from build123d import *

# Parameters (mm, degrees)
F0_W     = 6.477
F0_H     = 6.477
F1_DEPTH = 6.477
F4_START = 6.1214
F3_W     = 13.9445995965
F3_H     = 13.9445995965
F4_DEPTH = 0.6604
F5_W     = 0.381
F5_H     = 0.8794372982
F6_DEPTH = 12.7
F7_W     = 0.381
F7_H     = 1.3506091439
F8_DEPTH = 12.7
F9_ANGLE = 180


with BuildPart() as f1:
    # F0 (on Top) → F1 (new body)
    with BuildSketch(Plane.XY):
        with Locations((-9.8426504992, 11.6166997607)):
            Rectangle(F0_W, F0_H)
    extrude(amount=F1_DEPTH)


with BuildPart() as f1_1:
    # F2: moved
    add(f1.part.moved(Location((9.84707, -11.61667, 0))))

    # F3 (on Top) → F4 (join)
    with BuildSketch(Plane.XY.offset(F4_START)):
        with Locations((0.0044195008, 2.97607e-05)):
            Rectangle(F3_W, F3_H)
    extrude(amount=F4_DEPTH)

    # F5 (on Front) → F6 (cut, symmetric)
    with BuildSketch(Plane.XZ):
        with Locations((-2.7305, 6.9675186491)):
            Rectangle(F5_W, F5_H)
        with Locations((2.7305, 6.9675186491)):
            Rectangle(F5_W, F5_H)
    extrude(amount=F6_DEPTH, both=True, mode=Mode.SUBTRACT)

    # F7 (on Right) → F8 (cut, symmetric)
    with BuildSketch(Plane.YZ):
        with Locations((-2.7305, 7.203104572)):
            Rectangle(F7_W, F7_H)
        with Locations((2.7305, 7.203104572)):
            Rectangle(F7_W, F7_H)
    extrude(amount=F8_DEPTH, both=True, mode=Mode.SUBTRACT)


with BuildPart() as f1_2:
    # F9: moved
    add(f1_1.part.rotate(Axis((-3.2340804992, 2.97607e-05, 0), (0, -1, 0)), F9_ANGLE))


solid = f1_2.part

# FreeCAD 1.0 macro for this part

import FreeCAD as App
import Part
import Sketcher

V = App.Vector
Q = App.Units.Quantity


def add_polygon(sketch, points):
    """Adds a closed chain of lines whose ends are joined by coincident constraints."""
    first, n = sketch.GeometryCount, len(points)
    for a, b in zip(points, points[1:] + points[:1]):
        sketch.addGeometry(Part.LineSegment(App.Vector(*a, 0), App.Vector(*b, 0)), False)
    for i in range(n):
        sketch.addConstraint(Sketcher.Constraint("Coincident", first + i, 2, first + (i + 1) % n, 1))

doc = App.newDocument("Part")
body = doc.addObject("PartDesign::Body", "Body")

sketch1 = body.newObject("Sketcher::SketchObject", "Sketch")
sketch1.AttachmentSupport = (doc.getObject("XY_Plane"), [""])
sketch1.MapMode = "FlatFace"
add_polygon(sketch1, [(-13, 15), (-13, 8), (-7, 8), (-7, 15)])
sketch1.addConstraint(Sketcher.Constraint("Vertical", 0))
sketch1.addConstraint(Sketcher.Constraint("Horizontal", 1))
sketch1.addConstraint(Sketcher.Constraint("Vertical", 2))
sketch1.addConstraint(Sketcher.Constraint("Horizontal", 3))
sketch1.addConstraint(Sketcher.Constraint("Equal", 3, 0))
sketch1.addConstraint(Sketcher.Constraint("DistanceX", 1, 1, 1, 2, Q("0.255 in")))
sketch1.addConstraint(Sketcher.Constraint("DistanceY", -1, 1, 0, 2, Q("8.3782 mm")))
sketch1.addConstraint(Sketcher.Constraint("DistanceX", 0, 2, -1, 1, Q("13.08115 mm")))
pad1 = body.newObject("PartDesign::Pad", "Pad")
pad1.Profile = sketch1
pad1.Length = Q("0.255 in")
body2 = doc.addObject("PartDesign::Body", "Body001")
doc.recompute()

body.Placement = App.Placement(V(9.84707, -11.61667, 0), App.Rotation(V(0, 0, 1), 0))
boolean = body2.newObject("PartDesign::Boolean", "Boolean")
boolean.Type = "Fuse"
boolean.addObjects([body])

sketch2 = body2.newObject("Sketcher::SketchObject", "Sketch001")
sketch2.AttachmentSupport = (doc.getObject("XY_Plane001"), [""])
sketch2.MapMode = "FlatFace"
sketch2.AttachmentOffset = App.Placement(V(0, 0, 0.241 * 25.4), App.Rotation())
add_polygon(sketch2, [(-7, 7), (-7, -7), (7, -7), (7, 7)])
sketch2.addConstraint(Sketcher.Constraint("Vertical", 0))
sketch2.addConstraint(Sketcher.Constraint("Horizontal", 1))
sketch2.addConstraint(Sketcher.Constraint("Vertical", 2))
sketch2.addConstraint(Sketcher.Constraint("Horizontal", 3))
sketch2.addConstraint(Sketcher.Constraint("Equal", 3, 0))
sketch2.addConstraint(Sketcher.Constraint("DistanceX", 1, 1, 1, 2, Q("0.549 in")))
sketch2.addConstraint(Sketcher.Constraint("DistanceX", 0, 2, -1, 1, Q("6.96788 mm")))
sketch2.addConstraint(Sketcher.Constraint("DistanceY", 0, 2, -1, 1, Q("6.97227 mm")))
pad2 = body2.newObject("PartDesign::Pad", "Pad001")
pad2.Profile = sketch2
pad2.Length = Q("0.026 in")

sketch3 = body2.newObject("Sketcher::SketchObject", "Sketch002")
sketch3.AttachmentSupport = (doc.getObject("XZ_Plane001"), [""])
sketch3.MapMode = "FlatFace"
add_polygon(sketch3, [(-2.92, 7.41), (-2.92, 6.53), (-2.54, 6.53), (-2.54, 7.41)])
add_polygon(sketch3, [(2.54, 7.41), (2.54, 6.53), (2.92, 6.53), (2.92, 7.41)])
sketch3.addConstraint(Sketcher.Constraint("Vertical", 0))
sketch3.addConstraint(Sketcher.Constraint("Horizontal", 1))
sketch3.addConstraint(Sketcher.Constraint("Vertical", 2))
sketch3.addConstraint(Sketcher.Constraint("Horizontal", 3))
sketch3.addConstraint(Sketcher.Constraint("Vertical", 4))
sketch3.addConstraint(Sketcher.Constraint("Horizontal", 5))
sketch3.addConstraint(Sketcher.Constraint("Vertical", 6))
sketch3.addConstraint(Sketcher.Constraint("Horizontal", 7))
sketch3.addConstraint(Sketcher.Constraint("Symmetric", 1, 2, 4, 2, -2))
sketch3.addConstraint(Sketcher.Constraint("Symmetric", 3, 2, 6, 2, -2))
sketch3.addConstraint(Sketcher.Constraint("DistanceX", 1, 2, -1, 1, Q("0.1 in")))
sketch3.addConstraint(Sketcher.Constraint("DistanceX", 1, 1, 1, 2, Q("0.015 in")))
sketch3.addConstraint(Sketcher.Constraint("DistanceY", -1, 1, 0, 2, Q("0.257 in")))
sketch3.addConstraint(Sketcher.Constraint("DistanceY", 0, 2, 0, 1, Q("0.879437 mm")))
pocket1 = body2.newObject("PartDesign::Pocket", "Pocket")
pocket1.Profile = sketch3
pocket1.Length = Q("1 in")
pocket1.Midplane = True

sketch4 = body2.newObject("Sketcher::SketchObject", "Sketch003")
sketch4.AttachmentSupport = (doc.getObject("YZ_Plane001"), [""])
sketch4.MapMode = "FlatFace"
add_polygon(sketch4, [(-2.92, 7.88), (-2.92, 6.53), (-2.54, 6.53), (-2.54, 7.88)])
add_polygon(sketch4, [(2.54, 7.88), (2.54, 6.53), (2.92, 6.53), (2.92, 7.88)])
sketch4.addConstraint(Sketcher.Constraint("Vertical", 0))
sketch4.addConstraint(Sketcher.Constraint("Horizontal", 1))
sketch4.addConstraint(Sketcher.Constraint("Vertical", 2))
sketch4.addConstraint(Sketcher.Constraint("Horizontal", 3))
sketch4.addConstraint(Sketcher.Constraint("Vertical", 4))
sketch4.addConstraint(Sketcher.Constraint("Horizontal", 5))
sketch4.addConstraint(Sketcher.Constraint("Vertical", 6))
sketch4.addConstraint(Sketcher.Constraint("Horizontal", 7))
sketch4.addConstraint(Sketcher.Constraint("Symmetric", 1, 2, 4, 2, -2))
sketch4.addConstraint(Sketcher.Constraint("Symmetric", 3, 2, 6, 2, -2))
sketch4.addConstraint(Sketcher.Constraint("DistanceX", 1, 2, -1, 1, Q("0.1 in")))
sketch4.addConstraint(Sketcher.Constraint("DistanceX", 1, 1, 1, 2, Q("0.015 in")))
sketch4.addConstraint(Sketcher.Constraint("DistanceY", -1, 1, 0, 2, Q("0.257 in")))
sketch4.addConstraint(Sketcher.Constraint("DistanceY", 0, 2, 0, 1, Q("1.350609 mm")))
pocket2 = body2.newObject("PartDesign::Pocket", "Pocket001")
pocket2.Profile = sketch4
pocket2.Length = Q("1 in")
pocket2.Midplane = True
body3 = doc.addObject("PartDesign::Body", "Body002")
doc.recompute()

body2.Placement = App.Placement(V(-6.468161, 0, 0), App.Rotation(V(0, -1, 0), 180))
boolean2 = body3.newObject("PartDesign::Boolean", "Boolean001")
boolean2.Type = "Fuse"
boolean2.addObjects([body2])

doc.recompute()
